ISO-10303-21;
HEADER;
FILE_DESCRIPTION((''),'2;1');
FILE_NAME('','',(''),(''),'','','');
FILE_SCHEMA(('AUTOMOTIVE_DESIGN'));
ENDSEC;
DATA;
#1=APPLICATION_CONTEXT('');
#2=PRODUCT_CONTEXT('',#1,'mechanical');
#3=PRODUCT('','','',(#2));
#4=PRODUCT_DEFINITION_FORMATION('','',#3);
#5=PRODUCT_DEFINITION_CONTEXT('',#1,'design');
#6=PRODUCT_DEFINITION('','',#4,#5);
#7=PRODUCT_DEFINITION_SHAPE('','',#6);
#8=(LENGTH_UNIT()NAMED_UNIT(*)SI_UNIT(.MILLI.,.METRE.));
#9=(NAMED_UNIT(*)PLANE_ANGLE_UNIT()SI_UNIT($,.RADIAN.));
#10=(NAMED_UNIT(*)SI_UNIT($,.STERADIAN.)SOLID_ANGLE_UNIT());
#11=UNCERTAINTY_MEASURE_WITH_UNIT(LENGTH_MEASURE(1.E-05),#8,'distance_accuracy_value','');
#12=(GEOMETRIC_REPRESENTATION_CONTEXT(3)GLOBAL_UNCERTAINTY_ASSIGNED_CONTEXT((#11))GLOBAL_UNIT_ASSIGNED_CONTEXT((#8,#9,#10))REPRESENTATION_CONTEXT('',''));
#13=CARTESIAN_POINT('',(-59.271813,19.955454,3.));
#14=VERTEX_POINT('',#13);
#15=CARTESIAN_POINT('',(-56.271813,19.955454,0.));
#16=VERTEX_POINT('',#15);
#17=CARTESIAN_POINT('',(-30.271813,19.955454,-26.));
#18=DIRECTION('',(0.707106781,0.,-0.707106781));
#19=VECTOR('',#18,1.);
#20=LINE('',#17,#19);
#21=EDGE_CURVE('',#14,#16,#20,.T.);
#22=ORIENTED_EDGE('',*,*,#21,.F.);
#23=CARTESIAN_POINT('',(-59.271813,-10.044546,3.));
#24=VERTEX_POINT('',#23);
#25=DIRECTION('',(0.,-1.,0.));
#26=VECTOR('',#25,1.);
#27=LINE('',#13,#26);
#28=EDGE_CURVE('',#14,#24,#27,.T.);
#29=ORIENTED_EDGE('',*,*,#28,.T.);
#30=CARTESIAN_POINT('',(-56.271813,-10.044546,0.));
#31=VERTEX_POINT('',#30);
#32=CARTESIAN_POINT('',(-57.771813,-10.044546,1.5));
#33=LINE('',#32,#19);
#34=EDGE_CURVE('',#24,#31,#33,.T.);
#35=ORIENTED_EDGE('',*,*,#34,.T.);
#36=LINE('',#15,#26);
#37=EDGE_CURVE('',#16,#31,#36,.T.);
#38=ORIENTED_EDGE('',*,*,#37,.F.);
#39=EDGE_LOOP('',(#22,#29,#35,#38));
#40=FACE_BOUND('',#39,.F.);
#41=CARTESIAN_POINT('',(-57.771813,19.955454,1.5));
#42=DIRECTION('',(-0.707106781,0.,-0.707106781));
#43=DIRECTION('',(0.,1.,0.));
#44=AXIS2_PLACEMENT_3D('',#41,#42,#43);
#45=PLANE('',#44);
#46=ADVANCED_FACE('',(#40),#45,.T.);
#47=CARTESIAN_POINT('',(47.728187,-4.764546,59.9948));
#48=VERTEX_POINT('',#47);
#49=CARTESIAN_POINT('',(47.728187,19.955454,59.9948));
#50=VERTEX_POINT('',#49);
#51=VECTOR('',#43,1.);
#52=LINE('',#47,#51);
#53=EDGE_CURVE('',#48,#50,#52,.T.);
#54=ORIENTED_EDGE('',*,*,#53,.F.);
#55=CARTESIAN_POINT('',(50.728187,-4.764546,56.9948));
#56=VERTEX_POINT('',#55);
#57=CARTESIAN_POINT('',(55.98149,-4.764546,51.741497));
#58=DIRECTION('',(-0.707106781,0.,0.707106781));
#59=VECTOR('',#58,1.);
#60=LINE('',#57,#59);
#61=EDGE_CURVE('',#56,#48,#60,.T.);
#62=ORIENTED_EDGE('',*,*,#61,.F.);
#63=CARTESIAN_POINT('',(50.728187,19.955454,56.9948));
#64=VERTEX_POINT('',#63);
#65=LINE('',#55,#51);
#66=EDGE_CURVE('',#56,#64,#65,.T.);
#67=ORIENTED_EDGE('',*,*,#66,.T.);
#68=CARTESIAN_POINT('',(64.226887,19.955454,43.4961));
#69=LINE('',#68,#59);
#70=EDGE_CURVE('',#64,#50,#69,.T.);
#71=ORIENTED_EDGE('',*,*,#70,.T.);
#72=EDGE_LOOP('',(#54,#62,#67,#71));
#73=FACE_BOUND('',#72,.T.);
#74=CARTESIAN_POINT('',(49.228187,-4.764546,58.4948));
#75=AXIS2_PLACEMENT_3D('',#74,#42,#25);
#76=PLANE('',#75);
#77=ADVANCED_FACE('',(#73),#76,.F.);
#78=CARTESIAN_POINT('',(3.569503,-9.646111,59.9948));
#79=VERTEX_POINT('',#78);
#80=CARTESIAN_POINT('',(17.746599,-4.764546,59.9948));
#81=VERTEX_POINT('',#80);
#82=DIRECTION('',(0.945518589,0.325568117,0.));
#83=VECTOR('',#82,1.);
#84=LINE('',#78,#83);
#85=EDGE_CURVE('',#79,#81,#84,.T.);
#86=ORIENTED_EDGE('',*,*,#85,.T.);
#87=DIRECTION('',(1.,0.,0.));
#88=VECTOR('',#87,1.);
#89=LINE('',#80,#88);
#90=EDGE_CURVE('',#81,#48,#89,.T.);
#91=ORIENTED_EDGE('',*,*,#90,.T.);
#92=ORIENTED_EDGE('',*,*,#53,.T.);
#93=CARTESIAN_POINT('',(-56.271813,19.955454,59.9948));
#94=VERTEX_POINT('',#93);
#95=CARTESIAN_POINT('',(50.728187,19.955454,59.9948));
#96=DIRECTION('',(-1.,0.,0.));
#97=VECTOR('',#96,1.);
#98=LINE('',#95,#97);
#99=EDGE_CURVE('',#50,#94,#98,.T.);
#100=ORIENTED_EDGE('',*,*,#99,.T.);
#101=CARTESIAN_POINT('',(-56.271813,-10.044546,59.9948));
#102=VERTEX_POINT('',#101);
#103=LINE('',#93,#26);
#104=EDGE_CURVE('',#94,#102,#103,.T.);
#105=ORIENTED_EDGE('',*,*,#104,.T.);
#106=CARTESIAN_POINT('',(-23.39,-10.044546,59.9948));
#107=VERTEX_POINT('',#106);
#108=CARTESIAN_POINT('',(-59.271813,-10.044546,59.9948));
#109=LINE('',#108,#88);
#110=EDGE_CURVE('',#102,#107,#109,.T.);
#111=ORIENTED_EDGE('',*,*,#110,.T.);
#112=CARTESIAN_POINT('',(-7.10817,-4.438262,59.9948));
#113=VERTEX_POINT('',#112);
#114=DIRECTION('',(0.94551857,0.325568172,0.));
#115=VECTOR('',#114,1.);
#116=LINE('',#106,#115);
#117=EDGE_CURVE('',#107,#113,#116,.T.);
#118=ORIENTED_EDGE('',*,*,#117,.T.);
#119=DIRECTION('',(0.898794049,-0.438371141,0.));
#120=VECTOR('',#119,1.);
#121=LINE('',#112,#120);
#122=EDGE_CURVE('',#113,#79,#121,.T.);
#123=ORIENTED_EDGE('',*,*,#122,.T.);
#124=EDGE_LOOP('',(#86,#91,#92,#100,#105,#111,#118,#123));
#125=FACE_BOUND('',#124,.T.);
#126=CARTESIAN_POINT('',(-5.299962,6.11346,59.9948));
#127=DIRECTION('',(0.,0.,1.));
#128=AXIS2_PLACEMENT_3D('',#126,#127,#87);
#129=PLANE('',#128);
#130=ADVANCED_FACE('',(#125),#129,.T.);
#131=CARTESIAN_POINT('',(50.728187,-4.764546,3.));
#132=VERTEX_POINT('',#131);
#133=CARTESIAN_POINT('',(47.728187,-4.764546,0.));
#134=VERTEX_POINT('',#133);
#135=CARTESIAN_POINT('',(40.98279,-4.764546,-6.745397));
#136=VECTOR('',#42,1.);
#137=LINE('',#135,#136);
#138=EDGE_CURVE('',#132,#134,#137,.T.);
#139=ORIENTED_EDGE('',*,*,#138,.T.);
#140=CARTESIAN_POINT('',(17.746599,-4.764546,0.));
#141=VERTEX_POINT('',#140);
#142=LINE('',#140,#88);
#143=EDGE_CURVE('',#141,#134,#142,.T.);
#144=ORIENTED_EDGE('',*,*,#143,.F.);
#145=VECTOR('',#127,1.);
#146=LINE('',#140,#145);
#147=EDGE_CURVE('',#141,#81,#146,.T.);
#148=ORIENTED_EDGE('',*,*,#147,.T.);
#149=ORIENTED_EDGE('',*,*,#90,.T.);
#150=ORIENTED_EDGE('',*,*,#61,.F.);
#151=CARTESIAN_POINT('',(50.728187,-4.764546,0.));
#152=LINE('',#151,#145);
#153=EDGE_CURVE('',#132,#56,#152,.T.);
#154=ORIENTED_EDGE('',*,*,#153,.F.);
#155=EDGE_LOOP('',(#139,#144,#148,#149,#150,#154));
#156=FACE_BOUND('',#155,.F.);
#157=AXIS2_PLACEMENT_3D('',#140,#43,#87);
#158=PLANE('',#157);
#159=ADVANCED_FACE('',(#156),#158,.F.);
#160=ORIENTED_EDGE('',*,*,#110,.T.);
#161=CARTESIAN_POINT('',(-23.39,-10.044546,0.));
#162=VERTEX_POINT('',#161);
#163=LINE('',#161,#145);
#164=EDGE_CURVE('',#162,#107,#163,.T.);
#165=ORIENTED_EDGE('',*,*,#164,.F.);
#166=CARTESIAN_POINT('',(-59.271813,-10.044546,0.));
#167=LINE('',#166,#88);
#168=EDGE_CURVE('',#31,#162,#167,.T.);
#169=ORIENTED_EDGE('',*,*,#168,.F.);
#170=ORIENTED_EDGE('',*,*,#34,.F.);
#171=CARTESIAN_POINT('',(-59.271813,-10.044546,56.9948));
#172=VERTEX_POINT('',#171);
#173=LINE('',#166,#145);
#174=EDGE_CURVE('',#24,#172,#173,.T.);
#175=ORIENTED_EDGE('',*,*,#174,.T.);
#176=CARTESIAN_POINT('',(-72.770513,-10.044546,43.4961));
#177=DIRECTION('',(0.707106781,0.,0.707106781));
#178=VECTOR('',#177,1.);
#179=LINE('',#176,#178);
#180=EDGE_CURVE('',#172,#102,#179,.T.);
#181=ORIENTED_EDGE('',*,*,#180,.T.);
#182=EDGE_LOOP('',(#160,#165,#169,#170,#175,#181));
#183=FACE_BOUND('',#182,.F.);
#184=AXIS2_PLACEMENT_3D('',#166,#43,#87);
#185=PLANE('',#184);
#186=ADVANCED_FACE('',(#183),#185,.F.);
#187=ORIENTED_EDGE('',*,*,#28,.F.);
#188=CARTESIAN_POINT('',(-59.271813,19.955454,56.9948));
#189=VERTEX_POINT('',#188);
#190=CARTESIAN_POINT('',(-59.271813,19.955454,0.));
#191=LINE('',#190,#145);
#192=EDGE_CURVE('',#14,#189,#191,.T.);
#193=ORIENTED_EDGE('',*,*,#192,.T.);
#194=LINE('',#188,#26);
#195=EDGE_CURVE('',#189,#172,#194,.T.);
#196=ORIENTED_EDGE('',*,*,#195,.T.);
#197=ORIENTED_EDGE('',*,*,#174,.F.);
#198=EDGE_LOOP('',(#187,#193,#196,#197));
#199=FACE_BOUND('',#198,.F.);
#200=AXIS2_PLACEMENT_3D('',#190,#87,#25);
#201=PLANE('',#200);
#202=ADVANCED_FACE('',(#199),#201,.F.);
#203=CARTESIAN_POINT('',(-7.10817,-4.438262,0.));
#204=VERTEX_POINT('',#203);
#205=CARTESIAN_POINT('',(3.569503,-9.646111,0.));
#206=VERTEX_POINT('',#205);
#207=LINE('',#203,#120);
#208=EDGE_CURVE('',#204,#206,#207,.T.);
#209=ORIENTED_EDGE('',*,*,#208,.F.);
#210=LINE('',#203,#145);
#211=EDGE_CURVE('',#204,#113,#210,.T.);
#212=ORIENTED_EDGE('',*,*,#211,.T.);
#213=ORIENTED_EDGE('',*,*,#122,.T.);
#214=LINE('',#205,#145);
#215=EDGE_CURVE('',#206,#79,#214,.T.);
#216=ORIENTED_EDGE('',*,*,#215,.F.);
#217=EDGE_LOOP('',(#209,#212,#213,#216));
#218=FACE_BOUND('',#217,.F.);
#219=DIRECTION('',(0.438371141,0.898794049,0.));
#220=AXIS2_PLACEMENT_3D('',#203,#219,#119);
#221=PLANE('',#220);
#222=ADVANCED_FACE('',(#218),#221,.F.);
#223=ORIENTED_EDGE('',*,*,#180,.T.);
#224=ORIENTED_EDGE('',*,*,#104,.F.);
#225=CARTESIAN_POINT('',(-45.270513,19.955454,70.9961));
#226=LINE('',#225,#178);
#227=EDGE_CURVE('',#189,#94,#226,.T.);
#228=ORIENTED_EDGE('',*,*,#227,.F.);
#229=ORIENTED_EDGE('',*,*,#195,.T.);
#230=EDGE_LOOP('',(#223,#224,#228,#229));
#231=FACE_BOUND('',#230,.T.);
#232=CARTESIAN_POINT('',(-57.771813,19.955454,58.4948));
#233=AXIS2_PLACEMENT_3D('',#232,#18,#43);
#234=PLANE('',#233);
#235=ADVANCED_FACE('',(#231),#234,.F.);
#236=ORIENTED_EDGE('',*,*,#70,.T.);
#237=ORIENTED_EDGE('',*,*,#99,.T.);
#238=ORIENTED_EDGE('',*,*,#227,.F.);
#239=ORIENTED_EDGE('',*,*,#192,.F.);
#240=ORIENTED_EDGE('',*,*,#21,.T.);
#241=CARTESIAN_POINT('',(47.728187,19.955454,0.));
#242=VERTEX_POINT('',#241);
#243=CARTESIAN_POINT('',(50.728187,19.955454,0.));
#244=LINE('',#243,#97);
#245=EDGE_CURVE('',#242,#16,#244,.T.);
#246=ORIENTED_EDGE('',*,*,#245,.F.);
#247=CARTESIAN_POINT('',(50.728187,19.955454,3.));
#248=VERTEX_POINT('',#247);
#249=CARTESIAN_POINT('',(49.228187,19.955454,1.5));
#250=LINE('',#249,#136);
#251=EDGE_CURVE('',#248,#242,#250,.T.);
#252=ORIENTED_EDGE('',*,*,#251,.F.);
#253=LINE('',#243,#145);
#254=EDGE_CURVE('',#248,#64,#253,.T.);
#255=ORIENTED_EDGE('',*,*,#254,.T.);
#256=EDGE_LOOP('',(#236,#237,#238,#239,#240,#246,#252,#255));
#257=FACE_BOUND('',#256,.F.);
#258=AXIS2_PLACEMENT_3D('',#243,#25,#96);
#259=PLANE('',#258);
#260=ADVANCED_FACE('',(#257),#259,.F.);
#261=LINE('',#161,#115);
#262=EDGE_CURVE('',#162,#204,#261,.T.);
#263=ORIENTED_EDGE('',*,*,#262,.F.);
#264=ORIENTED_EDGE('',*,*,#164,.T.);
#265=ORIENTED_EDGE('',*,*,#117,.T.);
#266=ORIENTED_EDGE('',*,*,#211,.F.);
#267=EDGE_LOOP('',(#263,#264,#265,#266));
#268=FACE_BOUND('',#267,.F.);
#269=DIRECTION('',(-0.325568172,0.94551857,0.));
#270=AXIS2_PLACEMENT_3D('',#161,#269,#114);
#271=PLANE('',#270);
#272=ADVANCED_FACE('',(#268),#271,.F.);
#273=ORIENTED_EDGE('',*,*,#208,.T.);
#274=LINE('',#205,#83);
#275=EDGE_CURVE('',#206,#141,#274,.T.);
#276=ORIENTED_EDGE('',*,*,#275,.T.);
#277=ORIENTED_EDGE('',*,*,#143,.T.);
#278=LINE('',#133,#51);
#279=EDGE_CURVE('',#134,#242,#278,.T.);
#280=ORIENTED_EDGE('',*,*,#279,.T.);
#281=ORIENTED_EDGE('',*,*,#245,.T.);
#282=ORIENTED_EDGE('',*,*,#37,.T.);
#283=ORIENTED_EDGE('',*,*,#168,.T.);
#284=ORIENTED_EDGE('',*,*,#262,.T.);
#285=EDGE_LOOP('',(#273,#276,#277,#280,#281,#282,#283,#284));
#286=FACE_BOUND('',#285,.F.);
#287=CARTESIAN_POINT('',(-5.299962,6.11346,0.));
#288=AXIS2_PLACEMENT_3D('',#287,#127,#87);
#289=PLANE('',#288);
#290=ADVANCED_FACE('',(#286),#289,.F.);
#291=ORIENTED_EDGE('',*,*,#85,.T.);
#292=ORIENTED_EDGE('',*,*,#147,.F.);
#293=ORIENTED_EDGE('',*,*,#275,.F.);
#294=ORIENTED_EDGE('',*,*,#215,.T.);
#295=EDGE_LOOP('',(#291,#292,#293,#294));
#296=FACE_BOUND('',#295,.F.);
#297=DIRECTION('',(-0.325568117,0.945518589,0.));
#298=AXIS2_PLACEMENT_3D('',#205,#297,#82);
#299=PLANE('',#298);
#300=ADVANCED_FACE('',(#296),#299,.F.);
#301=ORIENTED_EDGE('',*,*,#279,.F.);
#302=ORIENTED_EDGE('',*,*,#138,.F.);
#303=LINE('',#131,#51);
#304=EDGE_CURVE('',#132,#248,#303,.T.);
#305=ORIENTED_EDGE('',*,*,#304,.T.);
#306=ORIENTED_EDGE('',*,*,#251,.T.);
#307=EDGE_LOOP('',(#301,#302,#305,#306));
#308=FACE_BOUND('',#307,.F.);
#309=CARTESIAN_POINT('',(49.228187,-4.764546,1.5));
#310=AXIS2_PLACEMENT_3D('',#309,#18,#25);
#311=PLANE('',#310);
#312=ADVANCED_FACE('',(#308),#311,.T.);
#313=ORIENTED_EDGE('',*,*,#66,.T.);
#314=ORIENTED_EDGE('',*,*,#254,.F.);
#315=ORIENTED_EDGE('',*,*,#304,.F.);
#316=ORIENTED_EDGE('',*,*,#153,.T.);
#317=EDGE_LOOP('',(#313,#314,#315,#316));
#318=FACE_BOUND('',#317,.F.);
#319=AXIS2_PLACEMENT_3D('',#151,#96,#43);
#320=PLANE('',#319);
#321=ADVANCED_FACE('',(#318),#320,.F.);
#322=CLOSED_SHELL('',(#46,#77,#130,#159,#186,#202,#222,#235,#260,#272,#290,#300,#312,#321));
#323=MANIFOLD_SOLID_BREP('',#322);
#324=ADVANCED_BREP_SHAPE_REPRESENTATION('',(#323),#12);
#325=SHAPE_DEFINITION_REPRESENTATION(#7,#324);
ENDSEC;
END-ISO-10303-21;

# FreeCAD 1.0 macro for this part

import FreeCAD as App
import Part
import Sketcher
from FreeCAD import Vector
Q = App.Units.Quantity


def edges_at(feature, points):
    """Names of the edges that pass closest to the given points."""
    edges = feature.Shape.Edges
    near = lambda p: min(range(len(edges)), key=lambda i: edges[i].distToShape(Part.Vertex(*p))[0])
    return sorted({f"Edge{near(p) + 1}" for p in points})


def add_polygon(sketch, points):
    """Adds a closed chain of lines whose ends are joined by coincident constraints."""
    first, n = sketch.GeometryCount, len(points)
    for a, b in zip(points, points[1:] + points[:1]):
        sketch.addGeometry(Part.LineSegment(App.Vector(*a, 0), App.Vector(*b, 0)), False)
    for i in range(n):
        sketch.addConstraint(Sketcher.Constraint("Coincident", first + i, 2, first + (i + 1) % n, 1))

doc = App.newDocument("Part")
params = doc.addObject("Spreadsheet::Sheet", "Params")
for row, (alias, value) in enumerate([
    ("sketch1_width", "110 mm"),
    ("sketch1_height", "30 mm"),
    ("sketch1_height2", "24.72 mm"),
    ("sketch1_length", "17.22 mm"),
    ("sketch1_length2", "11.88 mm"),
    ("pad1_length", "59.9948 mm"),
    ("chamfer_size", "3 mm"),
], start=1):
    params.set(f"A{row}", alias)
    params.set(f"B{row}", "=" + value)
    params.setAlias(f"B{row}", alias)

body = doc.addObject("PartDesign::Body", "Body")

sketch1 = doc.addObject("Sketcher::SketchObject", "Sketch")
body.addObject(sketch1)
sketch1.AttachmentSupport = (doc.XY_Plane, [""])
sketch1.MapMode = "FlatFace"
add_polygon(sketch1, [(51, 20), (-59, 20), (-59, -10), (-23, -10), (-7, -4), (4, -10), (18, -5), (51, -5)])
sketch1.addConstraint([
    Sketcher.Constraint("Horizontal", 0),
    Sketcher.Constraint("Vertical", 1),
    Sketcher.Constraint("Horizontal", 2),
    Sketcher.Constraint("Horizontal", 6),
    Sketcher.Constraint("Vertical", 7),
    Sketcher.Constraint("Parallel", 3, 5),
    Sketcher.Constraint("DistanceX", 0, 2, 0, 1, 110.0),
    Sketcher.Constraint("DistanceY", 1, 2, 1, 1, 30.0),
    Sketcher.Constraint("Angle", 3, Q("19.000001 deg")),
    Sketcher.Constraint("Angle", 4, Q("-26 deg")),
    Sketcher.Constraint("DistanceY", 7, 1, 7, 2, 24.72),
    Sketcher.Constraint("Distance", 3, 17.22),
    Sketcher.Constraint("Distance", 4, 11.88),
    Sketcher.Constraint("DistanceX", 2, 2, -1, 1, 23.39),
    Sketcher.Constraint("DistanceX", 6, 1, 6, 2, 32.981588),
    Sketcher.Constraint("DistanceY", 4, 2, -1, 1, 9.646111),
])
sketch1.setExpression("Constraints[14]", "Params.sketch1_width")
sketch1.setExpression("Constraints[15]", "Params.sketch1_height")
sketch1.setExpression("Constraints[18]", "Params.sketch1_height2")
sketch1.setExpression("Constraints[19]", "Params.sketch1_length")
sketch1.setExpression("Constraints[20]", "Params.sketch1_length2")
pad1 = doc.addObject("PartDesign::Pad", "Pad")
body.addObject(pad1)
pad1.Profile = sketch1
pad1.setExpression("Length", "Params.pad1_length")
doc.recompute()

chamfer = doc.addObject("PartDesign::Chamfer", "Chamfer")
body.addObject(chamfer)
chamfer.Base = (pad1, edges_at(pad1, [
    (-59.272, 4.955, 0),
    (50.728, 7.595, 0),
    (50.728, 7.595, 59.995),
    (-59.272, 4.955, 59.995),
]))
chamfer.setExpression("Size", "Params.chamfer_size")

doc.recompute()
